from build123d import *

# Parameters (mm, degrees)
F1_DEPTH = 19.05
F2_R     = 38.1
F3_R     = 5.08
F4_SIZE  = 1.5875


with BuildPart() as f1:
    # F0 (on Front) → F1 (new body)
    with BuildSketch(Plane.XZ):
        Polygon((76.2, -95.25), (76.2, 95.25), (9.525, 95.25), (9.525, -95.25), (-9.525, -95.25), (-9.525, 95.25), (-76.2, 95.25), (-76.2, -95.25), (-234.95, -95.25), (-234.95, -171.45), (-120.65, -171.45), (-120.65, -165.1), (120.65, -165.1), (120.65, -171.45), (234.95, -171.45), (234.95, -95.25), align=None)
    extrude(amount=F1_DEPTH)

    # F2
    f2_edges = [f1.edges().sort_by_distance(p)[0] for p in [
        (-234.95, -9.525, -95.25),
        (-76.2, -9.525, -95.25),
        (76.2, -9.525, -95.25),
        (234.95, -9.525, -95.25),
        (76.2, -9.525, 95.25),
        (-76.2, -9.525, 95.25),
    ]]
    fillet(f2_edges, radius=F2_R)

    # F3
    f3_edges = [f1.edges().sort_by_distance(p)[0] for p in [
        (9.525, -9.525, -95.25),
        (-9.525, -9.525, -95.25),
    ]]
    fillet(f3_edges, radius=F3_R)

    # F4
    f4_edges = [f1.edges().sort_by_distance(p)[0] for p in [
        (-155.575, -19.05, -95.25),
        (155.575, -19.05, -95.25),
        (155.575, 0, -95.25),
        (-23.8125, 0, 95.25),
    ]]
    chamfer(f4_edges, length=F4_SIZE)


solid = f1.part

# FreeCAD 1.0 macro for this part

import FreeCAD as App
import Part
import Sketcher
Q = App.Units.Quantity


def edges_at(feature, points):
    """Names of the edges that pass closest to the given points."""
    edges = feature.Shape.Edges
    near = lambda p: min(range(len(edges)), key=lambda i: edges[i].distToShape(Part.Vertex(*p))[0])
    return sorted({f"Edge{near(p) + 1}" for p in points})


def add_polygon(sketch, points):
    """Adds a closed chain of lines whose ends are joined by coincident constraints."""
    first, n = sketch.GeometryCount, len(points)
    for a, b in zip(points, points[1:] + points[:1]):
        sketch.addGeometry(Part.LineSegment(App.Vector(*a, 0), App.Vector(*b, 0)), False)
    for i in range(n):
        sketch.addConstraint(Sketcher.Constraint("Coincident", first + i, 2, first + (i + 1) % n, 1))

doc = App.newDocument("Part")
body = doc.addObject("PartDesign::Body", "Body")

sketch1 = doc.addObject("Sketcher::SketchObject", "Sketch")
body.addObject(sketch1)
sketch1.AttachmentSupport = (doc.XZ_Plane, [""])
sketch1.MapMode = "FlatFace"
add_polygon(sketch1, [(76, -95), (76, 95), (10, 95), (10, -95), (-10, -95), (-10, 95), (-76, 95), (-76, -95), (-235, -95), (-235, -171), (-121, -171), (-121, -165), (121, -165), (121, -171), (235, -171), (235, -95)])
sketch1.addConstraint([
    Sketcher.Constraint("Vertical", 0),
    Sketcher.Constraint("Horizontal", 1),
    Sketcher.Constraint("Vertical", 2),
    Sketcher.Constraint("Horizontal", 3),
    Sketcher.Constraint("Vertical", 4),
    Sketcher.Constraint("Horizontal", 5),
    Sketcher.Constraint("Vertical", 6),
    Sketcher.Constraint("Horizontal", 7),
    Sketcher.Constraint("Vertical", 8),
    Sketcher.Constraint("Horizontal", 9),
    Sketcher.Constraint("Vertical", 10),
    Sketcher.Constraint("Horizontal", 11),
    Sketcher.Constraint("Vertical", 12),
    Sketcher.Constraint("Horizontal", 13),
    Sketcher.Constraint("Vertical", 14),
    Sketcher.Constraint("Horizontal", 15),
    Sketcher.Constraint("Symmetric", 1, 2, 3, 2, -1, 1),
    Sketcher.Constraint("Symmetric", 0, 2, 6, 2, -1, 1),
    Sketcher.Constraint("Symmetric", 9, 2, 12, 2, -2),
    Sketcher.Constraint("Symmetric", 7, 2, 14, 2, -2),
    Sketcher.Constraint("Horizontal", 1, 2, 4, 2),
    Sketcher.Constraint("DistanceY", 8, 2, 8, 1, Q("3 in")),
    Sketcher.Constraint("DistanceX", 9, 1, 9, 2, Q("4.5 in")),
    Sketcher.Constraint("DistanceX", 11, 1, 11, 2, Q("9.5 in")),
    Sketcher.Constraint("DistanceY", 0, 1, 0, 2, Q("7.5 in")),
    Sketcher.Constraint("DistanceX", -1, 1, 0, 2, Q("3 in")),
    Sketcher.Constraint("DistanceX", 3, 2, 3, 1, Q("0.75 in")),
    Sketcher.Constraint("DistanceY", 10, 1, 10, 2, Q("0.25 in")),
])
pad1 = doc.addObject("PartDesign::Pad", "Pad")
body.addObject(pad1)
pad1.Profile = sketch1
pad1.Length = Q("0.75 in")
doc.recompute()

fillet = doc.addObject("PartDesign::Fillet", "Fillet")
body.addObject(fillet)
fillet.Base = (pad1, edges_at(pad1, [
    (-234.95, -9.525, -95.25),
    (-76.2, -9.525, -95.25),
    (76.2, -9.525, -95.25),
    (234.95, -9.525, -95.25),
    (76.2, -9.525, 95.25),
    (-76.2, -9.525, 95.25),
]))
fillet.Radius = Q("1.5 in")
doc.recompute()

fillet2 = doc.addObject("PartDesign::Fillet", "Fillet001")
body.addObject(fillet2)
fillet2.Base = (fillet, edges_at(fillet, [(9.525, -9.525, -95.25), (-9.525, -9.525, -95.25)]))
fillet2.Radius = Q("0.2 in")
doc.recompute()

chamfer = doc.addObject("PartDesign::Chamfer", "Chamfer")
body.addObject(chamfer)
chamfer.Base = (fillet2, edges_at(fillet2, [
    (-155.575, -19.05, -95.25),
    (155.575, -19.05, -95.25),
    (155.575, 0, -95.25),
    (-23.812, 0, 95.25),
]))
chamfer.Size = Q("0.0625 in")

doc.recompute()
